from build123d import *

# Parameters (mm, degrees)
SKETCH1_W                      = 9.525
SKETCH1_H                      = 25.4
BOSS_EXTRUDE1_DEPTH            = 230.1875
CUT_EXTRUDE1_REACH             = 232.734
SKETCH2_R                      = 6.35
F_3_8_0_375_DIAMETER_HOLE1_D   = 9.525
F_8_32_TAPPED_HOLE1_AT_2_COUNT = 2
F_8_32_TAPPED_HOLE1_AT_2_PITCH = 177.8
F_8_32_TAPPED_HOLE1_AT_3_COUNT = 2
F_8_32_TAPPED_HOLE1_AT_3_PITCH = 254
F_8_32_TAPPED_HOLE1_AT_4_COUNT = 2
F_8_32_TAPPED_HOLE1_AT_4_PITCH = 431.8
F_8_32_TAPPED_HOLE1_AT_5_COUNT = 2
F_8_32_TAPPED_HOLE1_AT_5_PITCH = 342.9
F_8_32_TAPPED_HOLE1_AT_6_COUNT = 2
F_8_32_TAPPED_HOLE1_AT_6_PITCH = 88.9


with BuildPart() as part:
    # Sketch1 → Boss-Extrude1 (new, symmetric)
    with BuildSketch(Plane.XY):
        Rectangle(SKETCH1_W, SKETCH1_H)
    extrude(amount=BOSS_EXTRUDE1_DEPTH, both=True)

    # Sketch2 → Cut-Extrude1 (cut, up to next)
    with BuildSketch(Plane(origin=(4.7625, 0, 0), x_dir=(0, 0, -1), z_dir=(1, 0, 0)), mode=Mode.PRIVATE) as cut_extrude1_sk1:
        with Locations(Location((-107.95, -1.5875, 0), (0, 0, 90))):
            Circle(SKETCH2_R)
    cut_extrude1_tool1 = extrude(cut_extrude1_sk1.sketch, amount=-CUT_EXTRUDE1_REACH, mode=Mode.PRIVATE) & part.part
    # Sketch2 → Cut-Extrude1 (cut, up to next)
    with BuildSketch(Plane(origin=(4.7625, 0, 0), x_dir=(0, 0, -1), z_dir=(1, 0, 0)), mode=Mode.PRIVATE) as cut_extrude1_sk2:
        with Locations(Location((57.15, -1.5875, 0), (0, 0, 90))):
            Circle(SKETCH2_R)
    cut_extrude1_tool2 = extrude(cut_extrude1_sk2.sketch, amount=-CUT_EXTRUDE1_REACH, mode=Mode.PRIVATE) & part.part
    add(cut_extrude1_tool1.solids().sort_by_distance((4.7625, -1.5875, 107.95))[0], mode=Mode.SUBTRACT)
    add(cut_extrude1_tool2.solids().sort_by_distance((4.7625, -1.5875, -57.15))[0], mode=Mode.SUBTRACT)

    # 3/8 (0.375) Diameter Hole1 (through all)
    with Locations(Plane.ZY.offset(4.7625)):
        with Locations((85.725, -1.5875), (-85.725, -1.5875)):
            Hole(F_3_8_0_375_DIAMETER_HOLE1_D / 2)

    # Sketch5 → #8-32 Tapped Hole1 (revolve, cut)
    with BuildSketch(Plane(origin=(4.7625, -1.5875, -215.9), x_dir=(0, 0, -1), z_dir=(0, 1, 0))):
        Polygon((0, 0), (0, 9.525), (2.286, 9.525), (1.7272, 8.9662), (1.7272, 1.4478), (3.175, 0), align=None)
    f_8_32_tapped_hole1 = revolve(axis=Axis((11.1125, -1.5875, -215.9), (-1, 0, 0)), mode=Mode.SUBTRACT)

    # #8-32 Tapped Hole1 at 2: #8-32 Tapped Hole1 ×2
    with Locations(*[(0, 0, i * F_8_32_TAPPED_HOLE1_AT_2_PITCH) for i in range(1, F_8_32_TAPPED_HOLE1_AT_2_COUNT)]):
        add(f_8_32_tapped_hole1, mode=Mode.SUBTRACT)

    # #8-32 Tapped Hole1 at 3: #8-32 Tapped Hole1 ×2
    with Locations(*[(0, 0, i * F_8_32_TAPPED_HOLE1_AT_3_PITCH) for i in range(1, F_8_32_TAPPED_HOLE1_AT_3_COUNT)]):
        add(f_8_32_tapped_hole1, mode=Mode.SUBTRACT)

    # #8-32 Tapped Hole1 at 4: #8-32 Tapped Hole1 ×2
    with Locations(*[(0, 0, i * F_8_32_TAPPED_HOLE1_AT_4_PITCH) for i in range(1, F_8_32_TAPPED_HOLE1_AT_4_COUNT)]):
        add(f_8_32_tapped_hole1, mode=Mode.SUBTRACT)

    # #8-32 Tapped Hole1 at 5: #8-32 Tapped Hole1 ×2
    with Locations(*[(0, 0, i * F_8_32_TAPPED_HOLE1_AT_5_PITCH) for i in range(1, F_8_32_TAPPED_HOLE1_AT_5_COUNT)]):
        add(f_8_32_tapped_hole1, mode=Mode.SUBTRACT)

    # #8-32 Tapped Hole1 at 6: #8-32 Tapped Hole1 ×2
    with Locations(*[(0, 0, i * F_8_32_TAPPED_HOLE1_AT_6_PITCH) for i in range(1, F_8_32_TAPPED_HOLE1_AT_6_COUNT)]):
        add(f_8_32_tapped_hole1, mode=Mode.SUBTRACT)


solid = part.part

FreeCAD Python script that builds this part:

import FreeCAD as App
import Part
import Sketcher
Q = App.Units.Quantity

doc = App.newDocument("Part")
body = doc.addObject("PartDesign::Body", "Body")

# Sketch on XY plane
sketch1 = body.newObject("Sketcher::SketchObject", "Sketch")
sketch1.AttachmentSupport = (doc.getObject("XY_Plane"), [""])
sketch1.MapMode = "FlatFace"
sketch1.addGeometry([
    Part.LineSegment(App.Vector(-5, 13, 0), App.Vector(-5, -13, 0)),
    Part.LineSegment(App.Vector(-5, -13, 0), App.Vector(5, -13, 0)),
    Part.LineSegment(App.Vector(5, -13, 0), App.Vector(5, 13, 0)),
    Part.LineSegment(App.Vector(5, 13, 0), App.Vector(-5, 13, 0)),
], False)
sketch1.addConstraint([
    Sketcher.Constraint("Coincident", 0, 2, 1, 1),
    Sketcher.Constraint("Coincident", 1, 2, 2, 1),
    Sketcher.Constraint("Coincident", 2, 2, 3, 1),
    Sketcher.Constraint("Coincident", 3, 2, 0, 1),
    Sketcher.Constraint("Vertical", 0),
    Sketcher.Constraint("Horizontal", 1),
    Sketcher.Constraint("Vertical", 2),
    Sketcher.Constraint("Horizontal", 3),
    Sketcher.Constraint("Symmetric", 0, 2, 2, 2, -1, 1),
    Sketcher.Constraint("DistanceY", 0, 2, 0, 1, Q("1 in")),
    Sketcher.Constraint("DistanceX", 1, 1, 1, 2, Q("0.375 in")),
])
pad1 = body.newObject("PartDesign::Pad", "Pad")
pad1.Profile = sketch1
pad1.Length = Q("18.125 in")
pad1.Midplane = True

# Sketch on YZ plane
sketch2 = body.newObject("Sketcher::SketchObject", "Sketch001")
sketch2.AttachmentSupport = (doc.getObject("YZ_Plane"), [""])
sketch2.MapMode = "FlatFace"
sketch2.AttachmentOffset = App.Placement(App.Vector(0, 0, 0.1875 * 25.4), App.Rotation())
sketch2.addGeometry(Part.Circle(App.Vector(-2, 108, 0), App.Vector(0, 0, 1), 6), False)
sketch2.addConstraint([
    Sketcher.Constraint("Diameter", 0, Q("0.5 in")),
    Sketcher.Constraint("DistanceY", -1, 1, 0, 3, Q("4.25 in")),
    Sketcher.Constraint("DistanceX", 0, 3, -1, 1, Q("0.0625 in")),
])
pocket1 = body.newObject("PartDesign::Pocket", "Pocket")
pocket1.Profile = sketch2
pocket1.Type = "UpToFirst"

# Sketch on YZ plane
sketch3 = body.newObject("Sketcher::SketchObject", "Sketch002")
sketch3.AttachmentSupport = (doc.getObject("YZ_Plane"), [""])
sketch3.MapMode = "FlatFace"
sketch3.AttachmentOffset = App.Placement(App.Vector(0, 0, 0.1875 * 25.4), App.Rotation())
sketch3.addGeometry(Part.Circle(App.Vector(-2, -57, 0), App.Vector(0, 0, 1), 6), False)
sketch3.addConstraint([
    Sketcher.Constraint("Diameter", 0, Q("0.5 in")),
    Sketcher.Constraint("DistanceY", 0, 3, -1, 1, Q("2.25 in")),
    Sketcher.Constraint("DistanceX", 0, 3, -1, 1, Q("0.0625 in")),
])
pocket2 = body.newObject("PartDesign::Pocket", "Pocket001")
pocket2.Profile = sketch3
pocket2.Type = "UpToFirst"

# Sketch on YZ plane
sketch4 = body.newObject("Sketcher::SketchObject", "Sketch003")
sketch4.AttachmentSupport = (doc.getObject("YZ_Plane"), [""])
sketch4.MapMode = "FlatFace"
sketch4.AttachmentOffset = App.Placement(App.Vector(0, 0, -0.1875 * 25.4), App.Rotation())
sketch4.addGeometry([
    Part.Circle(App.Vector(-1.6, 85.7, 0), App.Vector(0, 0, 1), 4.8),
    Part.Circle(App.Vector(-1.6, -85.7, 0), App.Vector(0, 0, 1), 4.8),
], False)
sketch4.addConstraint([
    Sketcher.Constraint("Equal", 0, 1),
    Sketcher.Constraint("Symmetric", 0, 3, 1, 3, -1),
    Sketcher.Constraint("Diameter", 0, Q("0.375 in")),
    Sketcher.Constraint("DistanceY", 1, 3, 0, 3, Q("6.75 in")),
    Sketcher.Constraint("DistanceX", 0, 3, -1, 1, Q("0.0625 in")),
])
doc.recompute()
hole = body.newObject("PartDesign::Hole", "Hole")
hole.Profile = sketch4
hole.ThreadType = "None"
hole.Diameter = Q("0.375 in")
hole.DepthType = "ThroughAll"
hole.Reversed = True

# Sketch on XZ plane
sketch5 = body.newObject("Sketcher::SketchObject", "Sketch004")
sketch5.AttachmentSupport = (doc.getObject("XZ_Plane"), [""])
sketch5.MapMode = "FlatFace"
sketch5.AttachmentOffset = App.Placement(App.Vector(0, 0, 0.0625 * 25.4), App.Rotation())
sketch5.addGeometry([
    Part.LineSegment(App.Vector(-4.8, -215.9, 0), App.Vector(4.8, -215.9, 0)),  # 0
    Part.LineSegment(App.Vector(4.8, -215.9, 0), App.Vector(4.8, -219.1, 0)),  # 1
    Part.LineSegment(App.Vector(4.8, -219.1, 0), App.Vector(3.3, -217.6, 0)),  # 2
    Part.LineSegment(App.Vector(3.3, -217.6, 0), App.Vector(-4.2, -217.6, 0)),  # 3
    Part.LineSegment(App.Vector(-4.2, -217.6, 0), App.Vector(-4.8, -218.2, 0)),  # 4
    Part.LineSegment(App.Vector(-4.8, -218.2, 0), App.Vector(-4.8, -215.9, 0)),  # 5
], False)
sketch5.addGeometry(Part.LineSegment(App.Vector(4.8, -215.9, 0), App.Vector(-4.8, -215.9, 0)), True)  # axis
sketch5.addConstraint([
    Sketcher.Constraint("Coincident", 0, 2, 1, 1),
    Sketcher.Constraint("Coincident", 1, 2, 2, 1),
    Sketcher.Constraint("Coincident", 2, 2, 3, 1),
    Sketcher.Constraint("Coincident", 3, 2, 4, 1),
    Sketcher.Constraint("Coincident", 4, 2, 5, 1),
    Sketcher.Constraint("Coincident", 5, 2, 0, 1),
    Sketcher.Constraint("Horizontal", 0),
    Sketcher.Constraint("Vertical", 1),
    Sketcher.Constraint("Horizontal", 3),
    Sketcher.Constraint("Vertical", 5),
    Sketcher.Constraint("Horizontal", 6),
    Sketcher.Constraint("Coincident", 6, 1, 0, 2),
    Sketcher.Constraint("Perpendicular", 2, 4),
    Sketcher.Constraint("Vertical", 4, 2, 6, 2),
    Sketcher.Constraint("Angle", 2, Q("135 deg")),
    Sketcher.Constraint("DistanceY", 5, 1, 5, 2, Q("0.09 in")),
    Sketcher.Constraint("DistanceY", 0, 2, -1, 1, Q("8.5 in")),
    Sketcher.Constraint("DistanceX", 0, 1, 0, 2, Q("0.375 in")),
    Sketcher.Constraint("DistanceX", 3, 2, 3, 1, Q("0.296 in")),
    Sketcher.Constraint("DistanceY", 1, 2, 1, 1, Q("0.125 in")),
    Sketcher.Constraint("DistanceX", -1, 1, 0, 2, Q("0.1875 in")),
])
groove = body.newObject("PartDesign::Groove", "Groove")
groove.Profile = sketch5
groove.ReferenceAxis = (sketch5, ["Axis0"])
groove.Angle = 360
doc.recompute()

linearpattern = body.newObject("PartDesign::LinearPattern", "LinearPattern")
linearpattern.Originals = [groove]
linearpattern.Direction = (doc.getObject("Z_Axis"), [""])
linearpattern.Mode = "offset"
linearpattern.Offset = Q("7 in")
linearpattern.Occurrences = 2
body.Tip = linearpattern
doc.recompute()

linearpattern2 = body.newObject("PartDesign::LinearPattern", "LinearPattern001")
linearpattern2.Originals = [groove]
linearpattern2.Direction = (doc.getObject("Z_Axis"), [""])
linearpattern2.Mode = "offset"
linearpattern2.Offset = Q("10 in")
linearpattern2.Occurrences = 2
body.Tip = linearpattern2
doc.recompute()

linearpattern3 = body.newObject("PartDesign::LinearPattern", "LinearPattern002")
linearpattern3.Originals = [groove]
linearpattern3.Direction = (doc.getObject("Z_Axis"), [""])
linearpattern3.Mode = "offset"
linearpattern3.Offset = Q("17 in")
linearpattern3.Occurrences = 2
body.Tip = linearpattern3
doc.recompute()

linearpattern4 = body.newObject("PartDesign::LinearPattern", "LinearPattern003")
linearpattern4.Originals = [groove]
linearpattern4.Direction = (doc.getObject("Z_Axis"), [""])
linearpattern4.Mode = "offset"
linearpattern4.Offset = Q("13.5 in")
linearpattern4.Occurrences = 2
body.Tip = linearpattern4
doc.recompute()

linearpattern5 = body.newObject("PartDesign::LinearPattern", "LinearPattern004")
linearpattern5.Originals = [groove]
linearpattern5.Direction = (doc.getObject("Z_Axis"), [""])
linearpattern5.Mode = "offset"
linearpattern5.Offset = Q("3.5 in")
linearpattern5.Occurrences = 2
body.Tip = linearpattern5

doc.recompute()
